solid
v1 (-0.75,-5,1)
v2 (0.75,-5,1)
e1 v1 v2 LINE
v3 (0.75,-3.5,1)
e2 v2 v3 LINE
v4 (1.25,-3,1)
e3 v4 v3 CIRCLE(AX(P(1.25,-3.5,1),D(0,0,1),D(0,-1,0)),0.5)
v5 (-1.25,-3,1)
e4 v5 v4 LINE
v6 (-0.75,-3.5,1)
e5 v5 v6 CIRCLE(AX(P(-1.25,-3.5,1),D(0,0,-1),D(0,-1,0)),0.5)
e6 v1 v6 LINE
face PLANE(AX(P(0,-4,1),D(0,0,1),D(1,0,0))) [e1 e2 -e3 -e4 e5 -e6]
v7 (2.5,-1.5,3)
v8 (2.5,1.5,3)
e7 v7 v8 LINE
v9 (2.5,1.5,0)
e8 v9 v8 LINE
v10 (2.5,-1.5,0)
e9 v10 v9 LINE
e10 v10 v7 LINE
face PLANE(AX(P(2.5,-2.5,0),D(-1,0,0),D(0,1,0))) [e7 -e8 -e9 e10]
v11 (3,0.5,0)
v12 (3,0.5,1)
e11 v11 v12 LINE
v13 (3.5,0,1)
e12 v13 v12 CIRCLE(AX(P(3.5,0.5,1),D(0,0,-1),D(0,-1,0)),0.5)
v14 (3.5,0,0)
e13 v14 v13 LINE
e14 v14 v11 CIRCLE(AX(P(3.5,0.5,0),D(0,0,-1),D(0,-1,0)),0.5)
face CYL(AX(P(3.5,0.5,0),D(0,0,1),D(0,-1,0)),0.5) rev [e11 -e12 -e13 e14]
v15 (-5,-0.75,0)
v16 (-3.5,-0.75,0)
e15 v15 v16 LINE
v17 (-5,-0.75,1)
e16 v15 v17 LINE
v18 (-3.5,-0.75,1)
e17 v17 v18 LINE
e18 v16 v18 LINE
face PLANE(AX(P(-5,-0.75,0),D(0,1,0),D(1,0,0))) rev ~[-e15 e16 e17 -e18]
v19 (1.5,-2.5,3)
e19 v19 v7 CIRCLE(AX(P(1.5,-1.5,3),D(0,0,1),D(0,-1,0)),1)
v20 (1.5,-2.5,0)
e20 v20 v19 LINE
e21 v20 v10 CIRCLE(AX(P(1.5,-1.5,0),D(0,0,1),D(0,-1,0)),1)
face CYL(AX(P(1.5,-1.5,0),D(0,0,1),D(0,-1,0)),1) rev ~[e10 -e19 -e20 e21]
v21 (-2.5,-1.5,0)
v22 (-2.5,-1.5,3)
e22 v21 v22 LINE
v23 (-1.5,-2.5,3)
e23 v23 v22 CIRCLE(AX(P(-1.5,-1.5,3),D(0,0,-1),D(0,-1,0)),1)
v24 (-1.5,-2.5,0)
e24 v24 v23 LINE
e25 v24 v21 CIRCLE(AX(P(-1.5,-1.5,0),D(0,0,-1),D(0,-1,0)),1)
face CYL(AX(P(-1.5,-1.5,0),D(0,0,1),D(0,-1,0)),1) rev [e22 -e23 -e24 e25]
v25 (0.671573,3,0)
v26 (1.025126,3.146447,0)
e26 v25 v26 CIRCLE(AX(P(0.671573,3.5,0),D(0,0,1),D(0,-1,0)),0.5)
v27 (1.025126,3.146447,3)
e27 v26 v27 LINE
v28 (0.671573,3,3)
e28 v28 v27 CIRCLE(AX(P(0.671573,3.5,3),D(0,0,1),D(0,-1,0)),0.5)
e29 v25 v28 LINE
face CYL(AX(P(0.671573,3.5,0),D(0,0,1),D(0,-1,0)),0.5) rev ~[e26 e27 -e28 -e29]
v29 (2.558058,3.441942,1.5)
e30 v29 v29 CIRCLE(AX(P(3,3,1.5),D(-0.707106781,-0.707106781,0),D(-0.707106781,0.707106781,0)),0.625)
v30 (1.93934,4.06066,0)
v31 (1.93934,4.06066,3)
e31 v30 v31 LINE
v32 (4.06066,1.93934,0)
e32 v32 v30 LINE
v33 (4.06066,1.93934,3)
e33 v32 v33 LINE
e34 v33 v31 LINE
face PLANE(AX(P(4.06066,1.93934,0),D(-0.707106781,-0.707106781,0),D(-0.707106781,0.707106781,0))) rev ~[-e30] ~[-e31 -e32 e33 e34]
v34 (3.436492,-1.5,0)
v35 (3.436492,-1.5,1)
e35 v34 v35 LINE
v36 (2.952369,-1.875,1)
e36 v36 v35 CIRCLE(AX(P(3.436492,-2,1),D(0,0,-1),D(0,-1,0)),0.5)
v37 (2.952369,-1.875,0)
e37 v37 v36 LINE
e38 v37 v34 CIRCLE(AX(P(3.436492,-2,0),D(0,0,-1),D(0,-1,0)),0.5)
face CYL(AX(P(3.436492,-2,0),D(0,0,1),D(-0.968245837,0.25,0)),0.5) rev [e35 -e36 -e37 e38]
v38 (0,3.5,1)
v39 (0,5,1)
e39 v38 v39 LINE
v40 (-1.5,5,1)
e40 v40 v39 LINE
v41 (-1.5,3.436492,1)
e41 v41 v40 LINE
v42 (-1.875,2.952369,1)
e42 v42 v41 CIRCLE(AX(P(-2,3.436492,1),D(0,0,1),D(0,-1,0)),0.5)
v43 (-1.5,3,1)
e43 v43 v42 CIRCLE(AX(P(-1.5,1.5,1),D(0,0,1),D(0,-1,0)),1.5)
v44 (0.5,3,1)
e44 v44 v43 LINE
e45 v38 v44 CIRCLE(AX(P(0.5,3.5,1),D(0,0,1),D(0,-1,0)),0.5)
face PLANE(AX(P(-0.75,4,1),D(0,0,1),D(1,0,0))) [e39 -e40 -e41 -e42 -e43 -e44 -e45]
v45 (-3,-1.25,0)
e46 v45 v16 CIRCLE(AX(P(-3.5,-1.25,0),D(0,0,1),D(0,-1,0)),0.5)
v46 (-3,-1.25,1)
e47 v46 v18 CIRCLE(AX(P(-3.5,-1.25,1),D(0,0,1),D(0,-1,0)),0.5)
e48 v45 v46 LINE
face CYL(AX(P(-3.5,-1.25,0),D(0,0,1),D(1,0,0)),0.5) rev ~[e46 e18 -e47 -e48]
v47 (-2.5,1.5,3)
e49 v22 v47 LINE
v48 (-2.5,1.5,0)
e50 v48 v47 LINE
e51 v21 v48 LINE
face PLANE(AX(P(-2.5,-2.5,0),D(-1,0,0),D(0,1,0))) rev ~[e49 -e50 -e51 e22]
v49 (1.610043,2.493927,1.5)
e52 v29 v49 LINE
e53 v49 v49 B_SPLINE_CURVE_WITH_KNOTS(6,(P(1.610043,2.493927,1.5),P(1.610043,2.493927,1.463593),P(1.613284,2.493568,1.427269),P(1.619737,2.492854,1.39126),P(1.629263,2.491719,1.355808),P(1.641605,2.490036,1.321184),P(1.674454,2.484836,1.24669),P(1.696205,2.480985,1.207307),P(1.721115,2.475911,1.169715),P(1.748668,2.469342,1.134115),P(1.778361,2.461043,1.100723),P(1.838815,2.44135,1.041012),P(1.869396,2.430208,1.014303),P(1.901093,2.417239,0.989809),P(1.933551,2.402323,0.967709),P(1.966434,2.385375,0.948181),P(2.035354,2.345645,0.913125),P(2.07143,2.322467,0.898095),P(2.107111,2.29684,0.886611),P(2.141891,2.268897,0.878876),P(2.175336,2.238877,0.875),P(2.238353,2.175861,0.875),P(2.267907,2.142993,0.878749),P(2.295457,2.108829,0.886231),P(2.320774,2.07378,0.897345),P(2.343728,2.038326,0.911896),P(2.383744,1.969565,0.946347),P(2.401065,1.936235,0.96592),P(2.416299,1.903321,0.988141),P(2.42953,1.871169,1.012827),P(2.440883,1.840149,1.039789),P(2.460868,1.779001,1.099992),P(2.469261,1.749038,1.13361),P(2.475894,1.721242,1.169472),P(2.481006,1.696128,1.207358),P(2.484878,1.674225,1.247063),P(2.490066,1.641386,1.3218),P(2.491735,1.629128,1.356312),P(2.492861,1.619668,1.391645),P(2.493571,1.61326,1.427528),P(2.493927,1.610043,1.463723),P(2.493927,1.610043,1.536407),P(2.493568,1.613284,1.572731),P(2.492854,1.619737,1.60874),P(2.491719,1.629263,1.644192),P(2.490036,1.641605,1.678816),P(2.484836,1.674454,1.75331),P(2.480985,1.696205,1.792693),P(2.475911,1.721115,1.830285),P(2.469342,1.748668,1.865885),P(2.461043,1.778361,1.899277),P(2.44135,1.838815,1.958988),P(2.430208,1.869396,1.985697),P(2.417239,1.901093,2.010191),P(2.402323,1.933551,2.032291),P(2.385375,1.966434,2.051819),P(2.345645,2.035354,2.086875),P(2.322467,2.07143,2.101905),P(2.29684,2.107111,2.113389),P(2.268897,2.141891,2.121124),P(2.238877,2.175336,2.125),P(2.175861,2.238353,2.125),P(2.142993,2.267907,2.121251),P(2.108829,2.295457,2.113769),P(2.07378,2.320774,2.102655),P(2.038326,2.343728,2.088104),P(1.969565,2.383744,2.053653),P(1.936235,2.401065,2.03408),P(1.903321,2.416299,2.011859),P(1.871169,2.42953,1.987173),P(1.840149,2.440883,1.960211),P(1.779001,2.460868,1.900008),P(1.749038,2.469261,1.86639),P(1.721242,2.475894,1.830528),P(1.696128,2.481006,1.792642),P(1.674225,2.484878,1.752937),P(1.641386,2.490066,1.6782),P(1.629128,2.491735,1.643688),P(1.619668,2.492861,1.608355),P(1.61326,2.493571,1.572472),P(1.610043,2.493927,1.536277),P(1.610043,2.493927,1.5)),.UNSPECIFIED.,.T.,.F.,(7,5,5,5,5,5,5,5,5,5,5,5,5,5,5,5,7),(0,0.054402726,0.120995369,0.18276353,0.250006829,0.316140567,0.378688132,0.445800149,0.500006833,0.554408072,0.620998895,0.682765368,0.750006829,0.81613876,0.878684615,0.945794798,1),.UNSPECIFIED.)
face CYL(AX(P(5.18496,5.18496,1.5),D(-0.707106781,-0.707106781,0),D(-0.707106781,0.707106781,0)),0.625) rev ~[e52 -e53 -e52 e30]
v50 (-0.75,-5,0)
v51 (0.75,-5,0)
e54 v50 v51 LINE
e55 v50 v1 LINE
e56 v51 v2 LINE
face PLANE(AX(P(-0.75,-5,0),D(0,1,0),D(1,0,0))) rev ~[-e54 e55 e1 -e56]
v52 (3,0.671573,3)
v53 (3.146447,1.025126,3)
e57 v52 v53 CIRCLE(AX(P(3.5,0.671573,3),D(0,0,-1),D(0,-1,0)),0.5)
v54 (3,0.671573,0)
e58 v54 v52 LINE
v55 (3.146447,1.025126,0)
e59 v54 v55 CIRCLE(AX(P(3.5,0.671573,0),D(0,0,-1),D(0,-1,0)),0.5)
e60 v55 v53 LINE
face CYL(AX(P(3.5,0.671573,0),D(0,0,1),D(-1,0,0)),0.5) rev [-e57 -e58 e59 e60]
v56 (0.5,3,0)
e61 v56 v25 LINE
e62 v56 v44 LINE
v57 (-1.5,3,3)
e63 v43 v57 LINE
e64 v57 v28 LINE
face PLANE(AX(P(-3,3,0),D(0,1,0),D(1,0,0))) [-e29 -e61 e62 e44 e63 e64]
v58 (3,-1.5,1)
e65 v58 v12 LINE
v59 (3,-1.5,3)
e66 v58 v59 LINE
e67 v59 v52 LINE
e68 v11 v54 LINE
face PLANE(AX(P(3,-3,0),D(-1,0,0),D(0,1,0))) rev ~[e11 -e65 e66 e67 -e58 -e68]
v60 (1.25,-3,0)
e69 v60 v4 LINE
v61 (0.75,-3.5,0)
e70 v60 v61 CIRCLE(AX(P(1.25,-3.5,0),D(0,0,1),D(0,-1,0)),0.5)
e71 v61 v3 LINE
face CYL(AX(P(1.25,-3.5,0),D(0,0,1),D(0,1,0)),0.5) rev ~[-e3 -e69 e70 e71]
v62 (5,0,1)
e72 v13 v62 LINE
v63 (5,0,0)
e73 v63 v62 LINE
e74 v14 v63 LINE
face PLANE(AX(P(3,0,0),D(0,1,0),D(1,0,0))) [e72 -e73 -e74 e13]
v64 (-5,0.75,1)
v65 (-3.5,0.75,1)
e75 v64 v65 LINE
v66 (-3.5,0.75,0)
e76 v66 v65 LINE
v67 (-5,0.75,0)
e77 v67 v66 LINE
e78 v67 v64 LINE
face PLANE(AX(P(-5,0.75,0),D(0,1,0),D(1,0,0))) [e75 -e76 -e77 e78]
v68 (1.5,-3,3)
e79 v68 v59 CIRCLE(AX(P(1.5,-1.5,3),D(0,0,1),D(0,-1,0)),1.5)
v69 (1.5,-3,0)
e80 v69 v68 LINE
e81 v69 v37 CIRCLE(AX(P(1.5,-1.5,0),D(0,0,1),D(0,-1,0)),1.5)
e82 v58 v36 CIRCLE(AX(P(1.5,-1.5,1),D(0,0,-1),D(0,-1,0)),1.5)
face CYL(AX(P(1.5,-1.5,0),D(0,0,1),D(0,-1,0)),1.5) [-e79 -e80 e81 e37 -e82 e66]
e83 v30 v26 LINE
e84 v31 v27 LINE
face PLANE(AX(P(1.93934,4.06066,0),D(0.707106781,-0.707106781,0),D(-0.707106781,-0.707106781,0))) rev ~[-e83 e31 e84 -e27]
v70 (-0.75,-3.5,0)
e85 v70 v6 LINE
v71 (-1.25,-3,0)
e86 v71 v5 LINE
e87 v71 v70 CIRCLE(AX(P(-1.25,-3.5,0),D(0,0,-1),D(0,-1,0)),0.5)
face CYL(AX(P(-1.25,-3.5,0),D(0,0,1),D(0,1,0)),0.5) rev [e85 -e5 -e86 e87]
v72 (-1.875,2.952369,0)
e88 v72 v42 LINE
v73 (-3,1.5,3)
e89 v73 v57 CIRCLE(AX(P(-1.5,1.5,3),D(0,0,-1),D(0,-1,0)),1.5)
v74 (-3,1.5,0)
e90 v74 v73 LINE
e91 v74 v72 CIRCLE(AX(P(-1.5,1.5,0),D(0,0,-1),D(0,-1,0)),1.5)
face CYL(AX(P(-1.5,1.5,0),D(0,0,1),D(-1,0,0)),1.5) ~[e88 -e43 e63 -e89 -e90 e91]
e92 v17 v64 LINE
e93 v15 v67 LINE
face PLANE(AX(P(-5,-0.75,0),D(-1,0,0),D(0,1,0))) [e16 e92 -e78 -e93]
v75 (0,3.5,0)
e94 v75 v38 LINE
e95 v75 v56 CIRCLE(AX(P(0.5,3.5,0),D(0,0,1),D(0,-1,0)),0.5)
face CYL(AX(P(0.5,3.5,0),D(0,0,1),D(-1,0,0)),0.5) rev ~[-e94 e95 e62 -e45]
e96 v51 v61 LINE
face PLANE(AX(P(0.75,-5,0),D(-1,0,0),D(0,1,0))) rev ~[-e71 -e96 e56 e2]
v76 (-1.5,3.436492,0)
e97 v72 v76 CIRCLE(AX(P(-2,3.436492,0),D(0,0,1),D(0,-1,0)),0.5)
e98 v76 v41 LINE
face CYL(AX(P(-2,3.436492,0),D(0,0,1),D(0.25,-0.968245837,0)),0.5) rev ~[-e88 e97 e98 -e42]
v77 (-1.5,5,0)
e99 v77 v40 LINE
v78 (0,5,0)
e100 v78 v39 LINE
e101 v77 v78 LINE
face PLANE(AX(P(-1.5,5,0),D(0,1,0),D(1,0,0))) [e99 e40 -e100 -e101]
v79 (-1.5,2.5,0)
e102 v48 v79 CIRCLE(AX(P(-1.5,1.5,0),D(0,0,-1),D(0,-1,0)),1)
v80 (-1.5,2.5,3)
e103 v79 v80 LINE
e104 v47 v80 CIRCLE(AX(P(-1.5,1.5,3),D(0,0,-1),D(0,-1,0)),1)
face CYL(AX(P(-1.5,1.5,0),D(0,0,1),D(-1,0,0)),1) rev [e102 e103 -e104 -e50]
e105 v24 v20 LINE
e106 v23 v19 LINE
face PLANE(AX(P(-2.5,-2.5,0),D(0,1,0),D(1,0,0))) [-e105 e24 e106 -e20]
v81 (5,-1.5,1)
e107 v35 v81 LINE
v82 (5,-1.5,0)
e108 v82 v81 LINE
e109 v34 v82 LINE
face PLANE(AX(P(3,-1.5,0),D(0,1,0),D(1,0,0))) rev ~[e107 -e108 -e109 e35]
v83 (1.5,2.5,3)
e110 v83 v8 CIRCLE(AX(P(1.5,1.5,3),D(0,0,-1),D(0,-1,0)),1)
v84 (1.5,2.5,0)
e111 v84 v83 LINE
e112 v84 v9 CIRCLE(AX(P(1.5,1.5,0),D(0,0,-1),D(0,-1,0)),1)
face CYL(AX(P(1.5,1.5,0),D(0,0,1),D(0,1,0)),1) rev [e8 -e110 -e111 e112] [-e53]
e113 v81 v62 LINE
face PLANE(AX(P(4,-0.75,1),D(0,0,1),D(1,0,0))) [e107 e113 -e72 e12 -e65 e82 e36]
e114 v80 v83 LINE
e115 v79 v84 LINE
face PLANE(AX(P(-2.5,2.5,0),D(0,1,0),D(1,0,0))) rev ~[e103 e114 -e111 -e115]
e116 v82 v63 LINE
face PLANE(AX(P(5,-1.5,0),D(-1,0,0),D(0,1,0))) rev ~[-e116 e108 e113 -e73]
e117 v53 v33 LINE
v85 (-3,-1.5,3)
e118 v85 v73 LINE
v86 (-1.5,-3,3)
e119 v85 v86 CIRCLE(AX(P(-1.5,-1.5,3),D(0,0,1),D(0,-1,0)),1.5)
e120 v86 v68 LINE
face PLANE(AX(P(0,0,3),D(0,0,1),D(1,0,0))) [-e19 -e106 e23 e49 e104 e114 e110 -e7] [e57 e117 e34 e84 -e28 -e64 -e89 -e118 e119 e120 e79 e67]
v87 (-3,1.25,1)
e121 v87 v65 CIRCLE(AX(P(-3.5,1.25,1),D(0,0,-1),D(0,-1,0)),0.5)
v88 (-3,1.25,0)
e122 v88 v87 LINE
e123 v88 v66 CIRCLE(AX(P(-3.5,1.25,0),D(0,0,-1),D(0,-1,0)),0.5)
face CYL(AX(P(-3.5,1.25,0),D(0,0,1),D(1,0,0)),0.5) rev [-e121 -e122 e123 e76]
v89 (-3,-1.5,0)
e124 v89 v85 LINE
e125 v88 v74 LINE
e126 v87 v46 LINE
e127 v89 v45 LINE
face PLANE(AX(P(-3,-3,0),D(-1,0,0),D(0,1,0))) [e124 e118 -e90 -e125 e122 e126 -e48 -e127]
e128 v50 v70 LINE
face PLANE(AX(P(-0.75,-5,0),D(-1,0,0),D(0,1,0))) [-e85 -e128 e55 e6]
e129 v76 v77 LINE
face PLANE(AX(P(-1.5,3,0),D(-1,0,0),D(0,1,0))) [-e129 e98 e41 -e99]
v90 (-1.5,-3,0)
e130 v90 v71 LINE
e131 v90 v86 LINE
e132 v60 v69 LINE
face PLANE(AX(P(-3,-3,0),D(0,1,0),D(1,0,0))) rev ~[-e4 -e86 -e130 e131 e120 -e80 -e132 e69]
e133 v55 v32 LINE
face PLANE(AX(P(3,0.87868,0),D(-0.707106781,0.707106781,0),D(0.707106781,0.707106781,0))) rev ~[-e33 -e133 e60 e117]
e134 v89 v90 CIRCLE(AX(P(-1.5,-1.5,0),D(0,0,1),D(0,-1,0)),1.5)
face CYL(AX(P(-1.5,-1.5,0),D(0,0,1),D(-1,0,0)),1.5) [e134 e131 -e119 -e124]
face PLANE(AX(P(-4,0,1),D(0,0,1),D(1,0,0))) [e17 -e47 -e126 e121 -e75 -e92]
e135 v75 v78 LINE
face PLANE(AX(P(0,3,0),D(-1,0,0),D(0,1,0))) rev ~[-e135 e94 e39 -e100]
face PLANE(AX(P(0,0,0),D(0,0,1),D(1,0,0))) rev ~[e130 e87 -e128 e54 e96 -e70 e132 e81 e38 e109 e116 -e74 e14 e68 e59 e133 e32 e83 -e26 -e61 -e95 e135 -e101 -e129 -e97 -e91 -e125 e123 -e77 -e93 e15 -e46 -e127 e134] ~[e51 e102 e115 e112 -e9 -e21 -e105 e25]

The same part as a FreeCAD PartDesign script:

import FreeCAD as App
import Part
import Sketcher
from FreeCAD import Vector


def edges_at(feature, points):
    """Names of the edges that pass closest to the given points."""
    edges = feature.Shape.Edges
    near = lambda p: min(range(len(edges)), key=lambda i: edges[i].distToShape(Part.Vertex(*p))[0])
    return sorted({f"Edge{near(p) + 1}" for p in points})


def add_polygon(sketch, points):
    """Adds a closed chain of lines whose ends are joined by coincident constraints."""
    first, n = sketch.GeometryCount, len(points)
    for a, b in zip(points, points[1:] + points[:1]):
        sketch.addGeometry(Part.LineSegment(App.Vector(*a, 0), App.Vector(*b, 0)), False)
    for i in range(n):
        sketch.addConstraint(Sketcher.Constraint("Coincident", first + i, 2, first + (i + 1) % n, 1))

doc = App.newDocument("Part")
params = doc.addObject("Spreadsheet::Sheet", "Params")
for row, (alias, value) in enumerate([
    ("sketch1_width", "6 mm"),
    ("sketch1_width2", "5 mm"),
    ("sketch1_length", "3 mm"),
    ("sketch1_length2", "1.5 mm"),
    ("pad1_length", "3 mm"),
    ("fillet_radius", "1 mm"),
    ("sketch2_width", "2 mm"),
    ("sketch2_width2", "1.5 mm"),
    ("pad2_length", "1 mm"),
    ("fillet2_radius", "1.5 mm"),
    ("fillet3_radius", "0.5 mm"),
    ("sketch3_diameter", "1.25 mm"),
    ("hole_diameter", "1.25 mm"),
    ("hole_depth", "3.09 mm"),
], start=1):
    params.set(f"A{row}", alias)
    params.set(f"B{row}", "=" + value)
    params.setAlias(f"B{row}", alias)

body = doc.addObject("PartDesign::Body", "Body")

sketch1 = body.newObject("Sketcher::SketchObject", "Sketch")
sketch1.AttachmentSupport = (doc.getObject("XY_Plane"), [""])
sketch1.MapMode = "FlatFace"
add_polygon(sketch1, [(-3, 3), (-3, -3), (3, -3), (3, 0.87868), (4.06066, 1.93934), (1.93934, 4.06066), (0.87868, 3)])
add_polygon(sketch1, [(2.5, -2.5), (-2.5, -2.5), (-2.5, 2.5), (2.5, 2.5)])
sketch1.addConstraint(Sketcher.Constraint("Vertical", 0))
sketch1.addConstraint(Sketcher.Constraint("Horizontal", 1))
sketch1.addConstraint(Sketcher.Constraint("Vertical", 2))
sketch1.addConstraint(Sketcher.Constraint("Horizontal", 6))
sketch1.addConstraint(Sketcher.Constraint("Horizontal", 7))
sketch1.addConstraint(Sketcher.Constraint("Vertical", 8))
sketch1.addConstraint(Sketcher.Constraint("Horizontal", 9))
sketch1.addConstraint(Sketcher.Constraint("Vertical", 10))
sketch1.addConstraint(Sketcher.Constraint("Symmetric", 1, 2, 6, 2, -1, 1))
sketch1.addConstraint(Sketcher.Constraint("Symmetric", 7, 2, 9, 2, -1, 1))
sketch1.addConstraint(Sketcher.Constraint("Perpendicular", 3, 4))
sketch1.addConstraint(Sketcher.Constraint("Perpendicular", 4, 5))
sketch1.addConstraint(Sketcher.Constraint("Equal", 1, 0))
sketch1.addConstraint(Sketcher.Constraint("Equal", 6, 2))
sketch1.addConstraint(Sketcher.Constraint("Equal", 9, 8))
sketch1.addConstraint(Sketcher.Constraint("Equal", 3, 5))
sketch1.addConstraint(Sketcher.Constraint("DistanceX", 1, 1, 1, 2, 6.0))
sketch1.addConstraint(Sketcher.Constraint("DistanceX", 7, 2, 7, 1, 5.0))
sketch1.addConstraint(Sketcher.Constraint("Distance", 4, 3.0))
sketch1.addConstraint(Sketcher.Constraint("Distance", 3, 1.5))
sketch1.setExpression("Constraints[27]", "Params.sketch1_width")
sketch1.setExpression("Constraints[28]", "Params.sketch1_width2")
sketch1.setExpression("Constraints[29]", "Params.sketch1_length")
sketch1.setExpression("Constraints[30]", "Params.sketch1_length2")
pad1 = body.newObject("PartDesign::Pad", "Pad")
pad1.Profile = sketch1
pad1.setExpression("Length", "Params.pad1_length")
doc.recompute()

fillet = body.newObject("PartDesign::Fillet", "Fillet")
fillet.Base = (pad1, edges_at(pad1, [
    (-2.5, 2.5, 1.5),
    (-2.5, -2.5, 1.5),
    (2.5, -2.5, 1.5),
    (2.5, 2.5, 1.5),
]))
fillet.setExpression("Radius", "Params.fillet_radius")

sketch2 = body.newObject("Sketcher::SketchObject", "Sketch001")
sketch2.AttachmentSupport = (doc.getObject("XY_Plane"), [""])
sketch2.MapMode = "FlatFace"
add_polygon(sketch2, [(-1.5, 5), (-1.5, 3), (0, 3), (0, 5)])
add_polygon(sketch2, [(-0.75, -3), (-0.75, -5), (0.75, -5), (0.75, -3)])
add_polygon(sketch2, [(-5, 0.75), (-5, -0.75), (-3, -0.75), (-3, 0.75)])
add_polygon(sketch2, [(3, 0), (3, -1.5), (5, -1.5), (5, 0)])
sketch2.addConstraint(Sketcher.Constraint("Vertical", 0))
sketch2.addConstraint(Sketcher.Constraint("Horizontal", 1))
sketch2.addConstraint(Sketcher.Constraint("Vertical", 2))
sketch2.addConstraint(Sketcher.Constraint("Horizontal", 3))
sketch2.addConstraint(Sketcher.Constraint("Vertical", 4))
sketch2.addConstraint(Sketcher.Constraint("Horizontal", 5))
sketch2.addConstraint(Sketcher.Constraint("Vertical", 6))
sketch2.addConstraint(Sketcher.Constraint("Horizontal", 7))
sketch2.addConstraint(Sketcher.Constraint("Vertical", 8))
sketch2.addConstraint(Sketcher.Constraint("Horizontal", 9))
sketch2.addConstraint(Sketcher.Constraint("Vertical", 10))
sketch2.addConstraint(Sketcher.Constraint("Horizontal", 11))
sketch2.addConstraint(Sketcher.Constraint("Vertical", 12))
sketch2.addConstraint(Sketcher.Constraint("Horizontal", 13))
sketch2.addConstraint(Sketcher.Constraint("Vertical", 14))
sketch2.addConstraint(Sketcher.Constraint("Horizontal", 15))
sketch2.addConstraint(Sketcher.Constraint("PointOnObject", 1, 2, -2))
sketch2.addConstraint(Sketcher.Constraint("PointOnObject", 14, 2, -1))
sketch2.addConstraint(Sketcher.Constraint("Equal", 3, 5))
sketch2.addConstraint(Sketcher.Constraint("Equal", 11, 13))
sketch2.addConstraint(Sketcher.Constraint("Equal", 15, 0))
sketch2.addConstraint(Sketcher.Constraint("Equal", 2, 4))
sketch2.addConstraint(Sketcher.Constraint("Equal", 7, 8))
sketch2.addConstraint(Sketcher.Constraint("Equal", 10, 12))
sketch2.addConstraint(Sketcher.Constraint("DistanceX", 9, 1, 9, 2, 2.0))
sketch2.addConstraint(Sketcher.Constraint("DistanceX", 1, 1, 1, 2, 1.5))
sketch2.addConstraint(Sketcher.Constraint("DistanceY", -1, 1, 0, 2, 3.0))
sketch2.addConstraint(Sketcher.Constraint("DistanceY", 4, 2, -1, 1, 5.0))
sketch2.addConstraint(Sketcher.Constraint("DistanceX", 8, 2, -1, 1, 5.0))
sketch2.addConstraint(Sketcher.Constraint("DistanceX", -1, 1, 12, 2, 3.0))
sketch2.addConstraint(Sketcher.Constraint("DistanceX", 4, 2, -1, 1, 0.75))
sketch2.addConstraint(Sketcher.Constraint("DistanceY", 8, 2, -1, 1, 0.75))
sketch2.setExpression("Constraints[40]", "Params.sketch2_width")
sketch2.setExpression("Constraints[41]", "Params.sketch2_width2")
pad2 = body.newObject("PartDesign::Pad", "Pad001")
pad2.Profile = sketch2
pad2.setExpression("Length", "Params.pad2_length")
doc.recompute()

fillet2 = body.newObject("PartDesign::Fillet", "Fillet001")
fillet2.Base = (pad2, edges_at(pad2, [(3, -3, 1.5), (-3, -3, 1.5), (-3, 3, 1.5)]))
fillet2.setExpression("Radius", "Params.fillet2_radius")
doc.recompute()

fillet3 = body.newObject("PartDesign::Fillet", "Fillet002")
fillet3.Base = (fillet2, edges_at(fillet2, [
    (3, 0, 0.5),
    (3, -1.5, 0.5),
    (0.879, 3, 1.5),
    (3, 0.879, 1.5),
    (-1.5, 3, 0.5),
    (0, 3, 0.5),
    (0.75, -3, 0.5),
    (-0.75, -3, 0.5),
    (-3, -0.75, 0.5),
    (-3, 0.75, 0.5),
]))
fillet3.setExpression("Radius", "Params.fillet3_radius")

sketch3 = body.newObject("Sketcher::SketchObject", "Sketch002")
sketch3.Placement = App.Placement(Vector(3, 3, 0), App.Rotation(Vector(0.707106781, -0.707106781, 0), Vector(0, 0, -0.999999999), Vector(0.707106781, 0.707106781, 0), "ZXY"))
sketch3.addGeometry(Part.Circle(Vector(0, -1.5, 0), Vector(0, 0, 1), 0.625), False)
sketch3.addConstraint(Sketcher.Constraint("PointOnObject", 0, 3, -2))
sketch3.addConstraint(Sketcher.Constraint("Diameter", 0, 1.25))
sketch3.addConstraint(Sketcher.Constraint("DistanceY", 0, 3, -1, 1, 1.5))
sketch3.setExpression("Constraints[1]", "Params.sketch3_diameter")
doc.recompute()
hole = body.newObject("PartDesign::Hole", "Hole")
hole.Profile = sketch3
hole.ThreadType = "None"
hole.setExpression("Diameter", "Params.hole_diameter")
hole.DepthType = "Dimension"
hole.setExpression("Depth", "Params.hole_depth")
hole.DrillPoint = "Angled"
hole.DrillPointAngle = 90

doc.recompute()
